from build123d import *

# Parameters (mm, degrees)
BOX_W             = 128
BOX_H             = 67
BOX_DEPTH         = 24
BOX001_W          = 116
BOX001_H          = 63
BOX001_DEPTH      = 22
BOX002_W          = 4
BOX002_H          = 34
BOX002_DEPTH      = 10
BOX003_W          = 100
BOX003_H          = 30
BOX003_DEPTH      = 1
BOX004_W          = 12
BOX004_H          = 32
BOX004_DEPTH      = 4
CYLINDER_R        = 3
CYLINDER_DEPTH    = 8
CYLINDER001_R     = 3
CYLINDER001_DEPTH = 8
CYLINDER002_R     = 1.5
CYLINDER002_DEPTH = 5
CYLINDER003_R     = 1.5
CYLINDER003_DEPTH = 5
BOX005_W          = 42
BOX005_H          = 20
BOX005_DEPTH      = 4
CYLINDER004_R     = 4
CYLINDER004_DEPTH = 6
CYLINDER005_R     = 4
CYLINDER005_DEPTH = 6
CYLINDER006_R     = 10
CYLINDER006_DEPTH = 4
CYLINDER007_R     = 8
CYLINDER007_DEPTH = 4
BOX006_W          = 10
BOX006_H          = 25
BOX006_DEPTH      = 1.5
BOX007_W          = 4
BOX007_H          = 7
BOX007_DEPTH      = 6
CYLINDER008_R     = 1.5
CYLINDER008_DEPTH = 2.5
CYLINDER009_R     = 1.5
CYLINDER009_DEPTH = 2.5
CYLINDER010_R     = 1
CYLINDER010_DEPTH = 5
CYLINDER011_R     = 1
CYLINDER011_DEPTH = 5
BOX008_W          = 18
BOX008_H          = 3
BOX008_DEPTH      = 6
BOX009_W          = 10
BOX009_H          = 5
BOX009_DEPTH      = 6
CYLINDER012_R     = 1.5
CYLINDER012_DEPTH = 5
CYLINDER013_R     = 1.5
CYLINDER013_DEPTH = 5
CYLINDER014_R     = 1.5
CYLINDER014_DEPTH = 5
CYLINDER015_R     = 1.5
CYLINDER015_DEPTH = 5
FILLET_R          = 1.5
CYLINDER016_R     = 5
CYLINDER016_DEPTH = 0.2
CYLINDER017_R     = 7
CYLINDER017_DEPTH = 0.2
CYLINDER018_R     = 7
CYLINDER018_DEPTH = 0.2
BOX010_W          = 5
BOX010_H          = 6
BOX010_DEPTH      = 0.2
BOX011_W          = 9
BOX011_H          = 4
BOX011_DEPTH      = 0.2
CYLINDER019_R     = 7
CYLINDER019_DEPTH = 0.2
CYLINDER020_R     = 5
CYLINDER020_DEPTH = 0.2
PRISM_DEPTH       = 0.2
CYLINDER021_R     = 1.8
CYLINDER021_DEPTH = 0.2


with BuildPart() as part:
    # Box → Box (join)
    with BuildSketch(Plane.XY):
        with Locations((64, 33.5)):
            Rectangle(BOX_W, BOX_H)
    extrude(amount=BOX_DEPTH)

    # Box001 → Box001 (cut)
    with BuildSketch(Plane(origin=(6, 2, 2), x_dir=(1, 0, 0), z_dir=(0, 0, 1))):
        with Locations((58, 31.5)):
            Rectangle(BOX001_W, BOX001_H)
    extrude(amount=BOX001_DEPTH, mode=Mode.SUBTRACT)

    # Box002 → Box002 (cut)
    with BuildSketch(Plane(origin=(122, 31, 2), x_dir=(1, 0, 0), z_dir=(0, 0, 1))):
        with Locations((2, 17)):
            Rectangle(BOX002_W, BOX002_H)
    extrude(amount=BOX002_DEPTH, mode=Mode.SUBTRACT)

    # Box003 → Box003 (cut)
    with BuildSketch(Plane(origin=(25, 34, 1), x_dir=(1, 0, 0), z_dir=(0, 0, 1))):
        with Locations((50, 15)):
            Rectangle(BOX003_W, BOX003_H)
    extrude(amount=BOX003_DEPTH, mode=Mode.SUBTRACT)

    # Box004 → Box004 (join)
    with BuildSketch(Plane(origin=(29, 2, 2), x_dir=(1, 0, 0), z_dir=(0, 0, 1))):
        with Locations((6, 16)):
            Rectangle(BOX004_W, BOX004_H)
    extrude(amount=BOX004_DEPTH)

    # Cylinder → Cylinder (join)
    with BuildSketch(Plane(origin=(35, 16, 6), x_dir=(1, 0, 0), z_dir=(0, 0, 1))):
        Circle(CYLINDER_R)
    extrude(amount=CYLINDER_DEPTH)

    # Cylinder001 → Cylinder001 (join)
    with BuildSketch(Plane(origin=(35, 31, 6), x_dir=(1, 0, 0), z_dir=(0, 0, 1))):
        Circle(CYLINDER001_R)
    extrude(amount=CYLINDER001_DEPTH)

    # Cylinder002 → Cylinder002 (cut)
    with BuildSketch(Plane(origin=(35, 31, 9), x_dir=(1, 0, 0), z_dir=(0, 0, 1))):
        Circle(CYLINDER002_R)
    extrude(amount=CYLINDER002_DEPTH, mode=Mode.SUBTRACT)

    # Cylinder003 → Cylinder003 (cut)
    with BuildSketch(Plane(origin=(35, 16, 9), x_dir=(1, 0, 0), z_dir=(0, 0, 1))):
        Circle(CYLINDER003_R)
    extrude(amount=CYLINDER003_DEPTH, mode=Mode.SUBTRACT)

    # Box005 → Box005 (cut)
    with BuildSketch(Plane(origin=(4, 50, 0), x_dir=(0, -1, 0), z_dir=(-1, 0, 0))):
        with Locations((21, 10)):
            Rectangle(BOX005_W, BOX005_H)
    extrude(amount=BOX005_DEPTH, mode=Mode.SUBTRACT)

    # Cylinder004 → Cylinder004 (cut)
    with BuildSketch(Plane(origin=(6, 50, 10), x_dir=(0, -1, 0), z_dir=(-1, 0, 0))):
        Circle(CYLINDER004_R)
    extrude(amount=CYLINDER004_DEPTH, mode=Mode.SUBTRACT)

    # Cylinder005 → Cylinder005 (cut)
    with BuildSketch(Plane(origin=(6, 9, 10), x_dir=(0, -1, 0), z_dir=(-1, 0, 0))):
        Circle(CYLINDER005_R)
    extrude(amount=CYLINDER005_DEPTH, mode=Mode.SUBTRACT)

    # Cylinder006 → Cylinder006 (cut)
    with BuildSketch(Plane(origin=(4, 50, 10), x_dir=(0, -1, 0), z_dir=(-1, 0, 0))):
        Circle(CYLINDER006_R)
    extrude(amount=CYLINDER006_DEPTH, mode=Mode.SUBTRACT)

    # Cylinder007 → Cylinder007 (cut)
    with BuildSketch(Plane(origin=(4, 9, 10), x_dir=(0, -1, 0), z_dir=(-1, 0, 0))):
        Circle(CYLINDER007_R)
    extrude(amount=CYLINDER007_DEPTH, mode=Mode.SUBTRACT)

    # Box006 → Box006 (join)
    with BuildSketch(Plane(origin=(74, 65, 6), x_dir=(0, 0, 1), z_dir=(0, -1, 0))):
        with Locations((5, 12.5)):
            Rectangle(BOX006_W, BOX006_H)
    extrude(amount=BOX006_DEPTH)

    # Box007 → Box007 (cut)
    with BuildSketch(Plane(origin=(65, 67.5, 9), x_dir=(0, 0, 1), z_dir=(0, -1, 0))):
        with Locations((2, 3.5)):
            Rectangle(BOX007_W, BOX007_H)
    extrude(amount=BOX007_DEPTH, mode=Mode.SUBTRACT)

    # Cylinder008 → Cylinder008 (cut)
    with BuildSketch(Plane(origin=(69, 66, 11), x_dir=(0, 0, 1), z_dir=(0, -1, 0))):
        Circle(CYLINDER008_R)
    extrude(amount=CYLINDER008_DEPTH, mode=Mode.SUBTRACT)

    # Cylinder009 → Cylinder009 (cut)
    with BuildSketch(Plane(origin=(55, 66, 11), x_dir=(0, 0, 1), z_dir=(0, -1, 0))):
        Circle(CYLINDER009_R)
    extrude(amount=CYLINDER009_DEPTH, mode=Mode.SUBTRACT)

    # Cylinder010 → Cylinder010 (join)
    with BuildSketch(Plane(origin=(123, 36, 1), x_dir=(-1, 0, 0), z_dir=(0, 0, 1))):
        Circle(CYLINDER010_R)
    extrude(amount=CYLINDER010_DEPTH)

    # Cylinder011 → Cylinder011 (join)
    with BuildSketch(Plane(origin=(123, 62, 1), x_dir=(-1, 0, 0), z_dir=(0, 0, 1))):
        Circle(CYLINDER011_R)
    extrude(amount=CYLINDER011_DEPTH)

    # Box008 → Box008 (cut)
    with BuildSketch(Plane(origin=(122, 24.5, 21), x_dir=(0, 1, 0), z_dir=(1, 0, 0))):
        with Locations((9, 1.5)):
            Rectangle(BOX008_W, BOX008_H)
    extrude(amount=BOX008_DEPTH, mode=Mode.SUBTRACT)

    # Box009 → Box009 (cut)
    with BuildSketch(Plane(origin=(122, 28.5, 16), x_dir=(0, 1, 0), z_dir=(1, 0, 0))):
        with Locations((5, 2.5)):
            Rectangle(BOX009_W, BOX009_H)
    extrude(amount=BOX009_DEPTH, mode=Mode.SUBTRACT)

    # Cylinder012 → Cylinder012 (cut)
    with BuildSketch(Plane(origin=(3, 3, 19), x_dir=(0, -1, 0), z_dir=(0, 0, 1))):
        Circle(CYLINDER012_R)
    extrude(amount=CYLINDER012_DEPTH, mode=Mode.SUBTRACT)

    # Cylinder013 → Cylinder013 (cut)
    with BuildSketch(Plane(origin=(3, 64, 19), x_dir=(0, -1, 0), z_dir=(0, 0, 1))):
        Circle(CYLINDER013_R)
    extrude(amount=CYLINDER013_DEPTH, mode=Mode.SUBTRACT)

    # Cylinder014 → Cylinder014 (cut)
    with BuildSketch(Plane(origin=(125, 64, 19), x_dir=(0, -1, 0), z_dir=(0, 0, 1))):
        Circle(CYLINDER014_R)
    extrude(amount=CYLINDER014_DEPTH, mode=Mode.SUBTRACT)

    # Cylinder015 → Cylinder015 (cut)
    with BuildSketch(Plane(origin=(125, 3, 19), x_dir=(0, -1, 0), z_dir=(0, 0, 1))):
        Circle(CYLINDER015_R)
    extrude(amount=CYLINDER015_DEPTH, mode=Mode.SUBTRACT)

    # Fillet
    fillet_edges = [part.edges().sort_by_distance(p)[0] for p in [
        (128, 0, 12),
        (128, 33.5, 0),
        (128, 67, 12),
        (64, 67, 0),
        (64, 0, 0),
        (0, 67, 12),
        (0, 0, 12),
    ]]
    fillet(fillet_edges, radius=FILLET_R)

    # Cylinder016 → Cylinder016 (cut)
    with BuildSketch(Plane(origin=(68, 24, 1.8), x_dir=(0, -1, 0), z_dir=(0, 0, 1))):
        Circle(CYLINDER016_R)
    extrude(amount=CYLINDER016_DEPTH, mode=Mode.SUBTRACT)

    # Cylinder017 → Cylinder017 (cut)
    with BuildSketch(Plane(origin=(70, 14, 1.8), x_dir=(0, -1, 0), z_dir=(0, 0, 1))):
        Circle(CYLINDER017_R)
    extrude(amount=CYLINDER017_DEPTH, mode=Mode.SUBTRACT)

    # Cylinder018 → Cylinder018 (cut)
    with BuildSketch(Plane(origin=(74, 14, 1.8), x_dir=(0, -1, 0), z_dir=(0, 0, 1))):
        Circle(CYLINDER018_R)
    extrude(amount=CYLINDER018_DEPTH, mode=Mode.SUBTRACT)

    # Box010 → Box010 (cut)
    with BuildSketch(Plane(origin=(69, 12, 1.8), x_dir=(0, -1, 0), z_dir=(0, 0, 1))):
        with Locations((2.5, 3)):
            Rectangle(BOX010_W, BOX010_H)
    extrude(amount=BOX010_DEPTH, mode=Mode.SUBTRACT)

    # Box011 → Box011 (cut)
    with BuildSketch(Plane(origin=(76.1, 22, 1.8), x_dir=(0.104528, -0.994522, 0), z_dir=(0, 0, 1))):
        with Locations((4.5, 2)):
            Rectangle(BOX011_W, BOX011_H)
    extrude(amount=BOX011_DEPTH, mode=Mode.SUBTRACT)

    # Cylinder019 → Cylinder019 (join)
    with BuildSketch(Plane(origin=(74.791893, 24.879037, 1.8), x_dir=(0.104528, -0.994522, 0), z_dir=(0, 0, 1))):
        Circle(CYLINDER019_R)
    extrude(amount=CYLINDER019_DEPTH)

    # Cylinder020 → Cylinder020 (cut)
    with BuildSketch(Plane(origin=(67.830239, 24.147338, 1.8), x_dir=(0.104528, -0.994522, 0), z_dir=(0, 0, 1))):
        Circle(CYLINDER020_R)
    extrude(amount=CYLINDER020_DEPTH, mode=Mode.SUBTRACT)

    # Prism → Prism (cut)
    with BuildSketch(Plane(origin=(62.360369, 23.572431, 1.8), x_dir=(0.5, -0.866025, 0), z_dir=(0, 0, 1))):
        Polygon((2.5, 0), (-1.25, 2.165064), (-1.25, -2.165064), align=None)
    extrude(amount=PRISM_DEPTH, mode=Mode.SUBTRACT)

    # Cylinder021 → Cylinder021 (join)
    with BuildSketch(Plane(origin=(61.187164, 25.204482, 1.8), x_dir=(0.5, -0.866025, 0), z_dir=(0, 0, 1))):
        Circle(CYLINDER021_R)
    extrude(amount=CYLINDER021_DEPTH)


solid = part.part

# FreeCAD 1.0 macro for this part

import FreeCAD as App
import Part
import Sketcher
from FreeCAD import Vector
Q = App.Units.Quantity


def edges_at(feature, points):
    """Names of the edges that pass closest to the given points."""
    edges = feature.Shape.Edges
    near = lambda p: min(range(len(edges)), key=lambda i: edges[i].distToShape(Part.Vertex(*p))[0])
    return sorted({f"Edge{near(p) + 1}" for p in points})

doc = App.newDocument("Part")
body = doc.addObject("PartDesign::Body", "Body")

# Sketch on XY plane
sketch1 = doc.addObject("Sketcher::SketchObject", "Sketch")
body.addObject(sketch1)
sketch1.AttachmentSupport = (doc.XY_Plane, [""])
sketch1.MapMode = "FlatFace"
sketch1.addGeometry(Part.LineSegment(Vector(0, 67, 0), Vector(0, 0, 0)), False)
sketch1.addGeometry(Part.LineSegment(Vector(0, 0, 0), Vector(128, 0, 0)), False)
sketch1.addGeometry(Part.LineSegment(Vector(128, 0, 0), Vector(128, 67, 0)), False)
sketch1.addGeometry(Part.LineSegment(Vector(128, 67, 0), Vector(0, 67, 0)), False)
sketch1.addConstraint(Sketcher.Constraint("Coincident", 0, 2, 1, 1))
sketch1.addConstraint(Sketcher.Constraint("Coincident", 1, 2, 2, 1))
sketch1.addConstraint(Sketcher.Constraint("Coincident", 2, 2, 3, 1))
sketch1.addConstraint(Sketcher.Constraint("Coincident", 3, 2, 0, 1))
sketch1.addConstraint(Sketcher.Constraint("Vertical", 0))
sketch1.addConstraint(Sketcher.Constraint("Horizontal", 1))
sketch1.addConstraint(Sketcher.Constraint("Vertical", 2))
sketch1.addConstraint(Sketcher.Constraint("Horizontal", 3))
sketch1.addConstraint(Sketcher.Constraint("Coincident", 0, 2, -1, 1))
sketch1.addConstraint(Sketcher.Constraint("DistanceX", 1, 1, 1, 2, 128.0))
sketch1.addConstraint(Sketcher.Constraint("DistanceY", 0, 2, 0, 1, 67.0))
pad1 = doc.addObject("PartDesign::Pad", "Pad")
body.addObject(pad1)
pad1.Profile = sketch1
pad1.Length = 24

# Sketch on XY plane
sketch2 = doc.addObject("Sketcher::SketchObject", "Sketch001")
body.addObject(sketch2)
sketch2.AttachmentSupport = (doc.XY_Plane, [""])
sketch2.MapMode = "FlatFace"
sketch2.AttachmentOffset = App.Placement(Vector(0, 0, 2), App.Rotation())
sketch2.addGeometry(Part.LineSegment(Vector(6, 65, 0), Vector(6, 2, 0)), False)
sketch2.addGeometry(Part.LineSegment(Vector(6, 2, 0), Vector(122, 2, 0)), False)
sketch2.addGeometry(Part.LineSegment(Vector(122, 2, 0), Vector(122, 65, 0)), False)
sketch2.addGeometry(Part.LineSegment(Vector(122, 65, 0), Vector(6, 65, 0)), False)
sketch2.addConstraint(Sketcher.Constraint("Coincident", 0, 2, 1, 1))
sketch2.addConstraint(Sketcher.Constraint("Coincident", 1, 2, 2, 1))
sketch2.addConstraint(Sketcher.Constraint("Coincident", 2, 2, 3, 1))
sketch2.addConstraint(Sketcher.Constraint("Coincident", 3, 2, 0, 1))
sketch2.addConstraint(Sketcher.Constraint("Vertical", 0))
sketch2.addConstraint(Sketcher.Constraint("Horizontal", 1))
sketch2.addConstraint(Sketcher.Constraint("Vertical", 2))
sketch2.addConstraint(Sketcher.Constraint("Horizontal", 3))
sketch2.addConstraint(Sketcher.Constraint("DistanceX", 1, 1, 1, 2, 116.0))
sketch2.addConstraint(Sketcher.Constraint("DistanceY", 0, 2, 0, 1, 63.0))
sketch2.addConstraint(Sketcher.Constraint("DistanceX", -1, 1, 0, 2, 6.0))
sketch2.addConstraint(Sketcher.Constraint("DistanceY", -1, 1, 0, 2, 2.0))
pocket1 = doc.addObject("PartDesign::Pocket", "Pocket")
body.addObject(pocket1)
pocket1.Profile = sketch2
pocket1.Length = 22
pocket1.Reversed = True

# Sketch on XY plane
sketch3 = doc.addObject("Sketcher::SketchObject", "Sketch002")
body.addObject(sketch3)
sketch3.AttachmentSupport = (doc.XY_Plane, [""])
sketch3.MapMode = "FlatFace"
sketch3.AttachmentOffset = App.Placement(Vector(0, 0, 2), App.Rotation())
sketch3.addGeometry(Part.LineSegment(Vector(122, 65, 0), Vector(122, 31, 0)), False)
sketch3.addGeometry(Part.LineSegment(Vector(122, 31, 0), Vector(126, 31, 0)), False)
sketch3.addGeometry(Part.LineSegment(Vector(126, 31, 0), Vector(126, 65, 0)), False)
sketch3.addGeometry(Part.LineSegment(Vector(126, 65, 0), Vector(122, 65, 0)), False)
sketch3.addConstraint(Sketcher.Constraint("Coincident", 0, 2, 1, 1))
sketch3.addConstraint(Sketcher.Constraint("Coincident", 1, 2, 2, 1))
sketch3.addConstraint(Sketcher.Constraint("Coincident", 2, 2, 3, 1))
sketch3.addConstraint(Sketcher.Constraint("Coincident", 3, 2, 0, 1))
sketch3.addConstraint(Sketcher.Constraint("Vertical", 0))
sketch3.addConstraint(Sketcher.Constraint("Horizontal", 1))
sketch3.addConstraint(Sketcher.Constraint("Vertical", 2))
sketch3.addConstraint(Sketcher.Constraint("Horizontal", 3))
sketch3.addConstraint(Sketcher.Constraint("DistanceX", 1, 1, 1, 2, 4.0))
sketch3.addConstraint(Sketcher.Constraint("DistanceY", 0, 2, 0, 1, 34.0))
sketch3.addConstraint(Sketcher.Constraint("DistanceX", -1, 1, 0, 2, 122.0))
sketch3.addConstraint(Sketcher.Constraint("DistanceY", -1, 1, 0, 2, 31.0))
pocket2 = doc.addObject("PartDesign::Pocket", "Pocket001")
body.addObject(pocket2)
pocket2.Profile = sketch3
pocket2.Length = 10
pocket2.Reversed = True

# Sketch on XY plane
sketch4 = doc.addObject("Sketcher::SketchObject", "Sketch003")
body.addObject(sketch4)
sketch4.AttachmentSupport = (doc.XY_Plane, [""])
sketch4.MapMode = "FlatFace"
sketch4.AttachmentOffset = App.Placement(Vector(0, 0, 1), App.Rotation())
sketch4.addGeometry(Part.LineSegment(Vector(25, 64, 0), Vector(25, 34, 0)), False)
sketch4.addGeometry(Part.LineSegment(Vector(25, 34, 0), Vector(125, 34, 0)), False)
sketch4.addGeometry(Part.LineSegment(Vector(125, 34, 0), Vector(125, 64, 0)), False)
sketch4.addGeometry(Part.LineSegment(Vector(125, 64, 0), Vector(25, 64, 0)), False)
sketch4.addConstraint(Sketcher.Constraint("Coincident", 0, 2, 1, 1))
sketch4.addConstraint(Sketcher.Constraint("Coincident", 1, 2, 2, 1))
sketch4.addConstraint(Sketcher.Constraint("Coincident", 2, 2, 3, 1))
sketch4.addConstraint(Sketcher.Constraint("Coincident", 3, 2, 0, 1))
sketch4.addConstraint(Sketcher.Constraint("Vertical", 0))
sketch4.addConstraint(Sketcher.Constraint("Horizontal", 1))
sketch4.addConstraint(Sketcher.Constraint("Vertical", 2))
sketch4.addConstraint(Sketcher.Constraint("Horizontal", 3))
sketch4.addConstraint(Sketcher.Constraint("DistanceX", 1, 1, 1, 2, 100.0))
sketch4.addConstraint(Sketcher.Constraint("DistanceY", 0, 2, 0, 1, 30.0))
sketch4.addConstraint(Sketcher.Constraint("DistanceX", -1, 1, 0, 2, 25.0))
sketch4.addConstraint(Sketcher.Constraint("DistanceY", -1, 1, 0, 2, 34.0))
pocket3 = doc.addObject("PartDesign::Pocket", "Pocket002")
body.addObject(pocket3)
pocket3.Profile = sketch4
pocket3.Length = 1
pocket3.Reversed = True

# Sketch on XY plane
sketch5 = doc.addObject("Sketcher::SketchObject", "Sketch004")
body.addObject(sketch5)
sketch5.AttachmentSupport = (doc.XY_Plane, [""])
sketch5.MapMode = "FlatFace"
sketch5.AttachmentOffset = App.Placement(Vector(0, 0, 2), App.Rotation())
sketch5.addGeometry(Part.LineSegment(Vector(29, 34, 0), Vector(29, 2, 0)), False)
sketch5.addGeometry(Part.LineSegment(Vector(29, 2, 0), Vector(41, 2, 0)), False)
sketch5.addGeometry(Part.LineSegment(Vector(41, 2, 0), Vector(41, 34, 0)), False)
sketch5.addGeometry(Part.LineSegment(Vector(41, 34, 0), Vector(29, 34, 0)), False)
sketch5.addConstraint(Sketcher.Constraint("Coincident", 0, 2, 1, 1))
sketch5.addConstraint(Sketcher.Constraint("Coincident", 1, 2, 2, 1))
sketch5.addConstraint(Sketcher.Constraint("Coincident", 2, 2, 3, 1))
sketch5.addConstraint(Sketcher.Constraint("Coincident", 3, 2, 0, 1))
sketch5.addConstraint(Sketcher.Constraint("Vertical", 0))
sketch5.addConstraint(Sketcher.Constraint("Horizontal", 1))
sketch5.addConstraint(Sketcher.Constraint("Vertical", 2))
sketch5.addConstraint(Sketcher.Constraint("Horizontal", 3))
sketch5.addConstraint(Sketcher.Constraint("DistanceX", 1, 1, 1, 2, 12.0))
sketch5.addConstraint(Sketcher.Constraint("DistanceY", 0, 2, 0, 1, 32.0))
sketch5.addConstraint(Sketcher.Constraint("DistanceX", -1, 1, 0, 2, 29.0))
sketch5.addConstraint(Sketcher.Constraint("DistanceY", -1, 1, 0, 2, 2.0))
pad2 = doc.addObject("PartDesign::Pad", "Pad001")
body.addObject(pad2)
pad2.Profile = sketch5
pad2.Length = 4

# Sketch on XY plane
sketch6 = doc.addObject("Sketcher::SketchObject", "Sketch005")
body.addObject(sketch6)
sketch6.AttachmentSupport = (doc.XY_Plane, [""])
sketch6.MapMode = "FlatFace"
sketch6.AttachmentOffset = App.Placement(Vector(0, 0, 6), App.Rotation())
sketch6.addGeometry(Part.Circle(Vector(35, 16, 0), Vector(0, 0, 1), 3), False)
sketch6.addConstraint(Sketcher.Constraint("Diameter", 0, 6.0))
sketch6.addConstraint(Sketcher.Constraint("DistanceX", -1, 1, 0, 3, 35.0))
sketch6.addConstraint(Sketcher.Constraint("DistanceY", -1, 1, 0, 3, 16.0))
pad3 = doc.addObject("PartDesign::Pad", "Pad002")
body.addObject(pad3)
pad3.Profile = sketch6
pad3.Length = 8

# Sketch on XY plane
sketch7 = doc.addObject("Sketcher::SketchObject", "Sketch006")
body.addObject(sketch7)
sketch7.AttachmentSupport = (doc.XY_Plane, [""])
sketch7.MapMode = "FlatFace"
sketch7.AttachmentOffset = App.Placement(Vector(0, 0, 6), App.Rotation())
sketch7.addGeometry(Part.Circle(Vector(35, 31, 0), Vector(0, 0, 1), 3), False)
sketch7.addConstraint(Sketcher.Constraint("Diameter", 0, 6.0))
sketch7.addConstraint(Sketcher.Constraint("DistanceX", -1, 1, 0, 3, 35.0))
sketch7.addConstraint(Sketcher.Constraint("DistanceY", -1, 1, 0, 3, 31.0))
pad4 = doc.addObject("PartDesign::Pad", "Pad003")
body.addObject(pad4)
pad4.Profile = sketch7
pad4.Length = 8

# Sketch on XY plane
sketch8 = doc.addObject("Sketcher::SketchObject", "Sketch007")
body.addObject(sketch8)
sketch8.AttachmentSupport = (doc.XY_Plane, [""])
sketch8.MapMode = "FlatFace"
sketch8.AttachmentOffset = App.Placement(Vector(0, 0, 9), App.Rotation())
sketch8.addGeometry(Part.Circle(Vector(35, 31, 0), Vector(0, 0, 1), 1.5), False)
sketch8.addConstraint(Sketcher.Constraint("Diameter", 0, 3.0))
sketch8.addConstraint(Sketcher.Constraint("DistanceX", -1, 1, 0, 3, 35.0))
sketch8.addConstraint(Sketcher.Constraint("DistanceY", -1, 1, 0, 3, 31.0))
pocket4 = doc.addObject("PartDesign::Pocket", "Pocket003")
body.addObject(pocket4)
pocket4.Profile = sketch8
pocket4.Length = 5
pocket4.Reversed = True

# Sketch on XY plane
sketch9 = doc.addObject("Sketcher::SketchObject", "Sketch008")
body.addObject(sketch9)
sketch9.AttachmentSupport = (doc.XY_Plane, [""])
sketch9.MapMode = "FlatFace"
sketch9.AttachmentOffset = App.Placement(Vector(0, 0, 9), App.Rotation())
sketch9.addGeometry(Part.Circle(Vector(35, 16, 0), Vector(0, 0, 1), 1.5), False)
sketch9.addConstraint(Sketcher.Constraint("Diameter", 0, 3.0))
sketch9.addConstraint(Sketcher.Constraint("DistanceX", -1, 1, 0, 3, 35.0))
sketch9.addConstraint(Sketcher.Constraint("DistanceY", -1, 1, 0, 3, 16.0))
pocket5 = doc.addObject("PartDesign::Pocket", "Pocket004")
body.addObject(pocket5)
pocket5.Profile = sketch9
pocket5.Length = 5
pocket5.Reversed = True

# Sketch on YZ plane
sketch10 = doc.addObject("Sketcher::SketchObject", "Sketch009")
body.addObject(sketch10)
sketch10.AttachmentSupport = (doc.YZ_Plane, [""])
sketch10.MapMode = "FlatFace"
sketch10.AttachmentOffset = App.Placement(Vector(0, 0, 4), App.Rotation())
sketch10.addGeometry(Part.LineSegment(Vector(50, 20, 0), Vector(50, 0, 0)), False)
sketch10.addGeometry(Part.LineSegment(Vector(50, 0, 0), Vector(8, 0, 0)), False)
sketch10.addGeometry(Part.LineSegment(Vector(8, 0, 0), Vector(8, 20, 0)), False)
sketch10.addGeometry(Part.LineSegment(Vector(8, 20, 0), Vector(50, 20, 0)), False)
sketch10.addConstraint(Sketcher.Constraint("Coincident", 0, 2, 1, 1))
sketch10.addConstraint(Sketcher.Constraint("Coincident", 1, 2, 2, 1))
sketch10.addConstraint(Sketcher.Constraint("Coincident", 2, 2, 3, 1))
sketch10.addConstraint(Sketcher.Constraint("Coincident", 3, 2, 0, 1))
sketch10.addConstraint(Sketcher.Constraint("Vertical", 0))
sketch10.addConstraint(Sketcher.Constraint("Horizontal", 1))
sketch10.addConstraint(Sketcher.Constraint("Vertical", 2))
sketch10.addConstraint(Sketcher.Constraint("Horizontal", 3))
sketch10.addConstraint(Sketcher.Constraint("PointOnObject", 0, 2, -1))
sketch10.addConstraint(Sketcher.Constraint("DistanceX", 1, 2, 1, 1, 42.0))
sketch10.addConstraint(Sketcher.Constraint("DistanceY", 0, 2, 0, 1, 20.0))
sketch10.addConstraint(Sketcher.Constraint("DistanceX", -1, 1, 0, 2, 50.0))
pocket6 = doc.addObject("PartDesign::Pocket", "Pocket005")
body.addObject(pocket6)
pocket6.Profile = sketch10
pocket6.Length = 4

# Sketch on YZ plane
sketch11 = doc.addObject("Sketcher::SketchObject", "Sketch010")
body.addObject(sketch11)
sketch11.AttachmentSupport = (doc.YZ_Plane, [""])
sketch11.MapMode = "FlatFace"
sketch11.AttachmentOffset = App.Placement(Vector(0, 0, 6), App.Rotation())
sketch11.addGeometry(Part.Circle(Vector(50, 10, 0), Vector(0, 0, 1), 4), False)
sketch11.addConstraint(Sketcher.Constraint("Diameter", 0, 8.0))
sketch11.addConstraint(Sketcher.Constraint("DistanceX", -1, 1, 0, 3, 50.0))
sketch11.addConstraint(Sketcher.Constraint("DistanceY", -1, 1, 0, 3, 10.0))
pocket7 = doc.addObject("PartDesign::Pocket", "Pocket006")
body.addObject(pocket7)
pocket7.Profile = sketch11
pocket7.Length = 6

# Sketch on YZ plane
sketch12 = doc.addObject("Sketcher::SketchObject", "Sketch011")
body.addObject(sketch12)
sketch12.AttachmentSupport = (doc.YZ_Plane, [""])
sketch12.MapMode = "FlatFace"
sketch12.AttachmentOffset = App.Placement(Vector(0, 0, 6), App.Rotation())
sketch12.addGeometry(Part.Circle(Vector(9, 10, 0), Vector(0, 0, 1), 4), False)
sketch12.addConstraint(Sketcher.Constraint("Diameter", 0, 8.0))
sketch12.addConstraint(Sketcher.Constraint("DistanceX", -1, 1, 0, 3, 9.0))
sketch12.addConstraint(Sketcher.Constraint("DistanceY", -1, 1, 0, 3, 10.0))
pocket8 = doc.addObject("PartDesign::Pocket", "Pocket007")
body.addObject(pocket8)
pocket8.Profile = sketch12
pocket8.Length = 6

# Sketch on YZ plane
sketch13 = doc.addObject("Sketcher::SketchObject", "Sketch012")
body.addObject(sketch13)
sketch13.AttachmentSupport = (doc.YZ_Plane, [""])
sketch13.MapMode = "FlatFace"
sketch13.AttachmentOffset = App.Placement(Vector(0, 0, 4), App.Rotation())
sketch13.addGeometry(Part.Circle(Vector(50, 10, 0), Vector(0, 0, 1), 10), False)
sketch13.addConstraint(Sketcher.Constraint("Diameter", 0, 20.0))
sketch13.addConstraint(Sketcher.Constraint("DistanceX", -1, 1, 0, 3, 50.0))
sketch13.addConstraint(Sketcher.Constraint("DistanceY", -1, 1, 0, 3, 10.0))
pocket9 = doc.addObject("PartDesign::Pocket", "Pocket008")
body.addObject(pocket9)
pocket9.Profile = sketch13
pocket9.Length = 4

# Sketch on YZ plane
sketch14 = doc.addObject("Sketcher::SketchObject", "Sketch013")
body.addObject(sketch14)
sketch14.AttachmentSupport = (doc.YZ_Plane, [""])
sketch14.MapMode = "FlatFace"
sketch14.AttachmentOffset = App.Placement(Vector(0, 0, 4), App.Rotation())
sketch14.addGeometry(Part.Circle(Vector(9, 10, 0), Vector(0, 0, 1), 8), False)
sketch14.addConstraint(Sketcher.Constraint("Diameter", 0, 16.0))
sketch14.addConstraint(Sketcher.Constraint("DistanceX", -1, 1, 0, 3, 9.0))
sketch14.addConstraint(Sketcher.Constraint("DistanceY", -1, 1, 0, 3, 10.0))
pocket10 = doc.addObject("PartDesign::Pocket", "Pocket009")
body.addObject(pocket10)
pocket10.Profile = sketch14
pocket10.Length = 4

# Sketch on XZ plane
sketch15 = doc.addObject("Sketcher::SketchObject", "Sketch014")
body.addObject(sketch15)
sketch15.AttachmentSupport = (doc.XZ_Plane, [""])
sketch15.MapMode = "FlatFace"
sketch15.AttachmentOffset = App.Placement(Vector(0, 0, -65), App.Rotation())
sketch15.addGeometry(Part.LineSegment(Vector(49, 6, 0), Vector(74, 6, 0)), False)
sketch15.addGeometry(Part.LineSegment(Vector(74, 6, 0), Vector(74, 16, 0)), False)
sketch15.addGeometry(Part.LineSegment(Vector(74, 16, 0), Vector(49, 16, 0)), False)
sketch15.addGeometry(Part.LineSegment(Vector(49, 16, 0), Vector(49, 6, 0)), False)
sketch15.addConstraint(Sketcher.Constraint("Coincident", 0, 2, 1, 1))
sketch15.addConstraint(Sketcher.Constraint("Coincident", 1, 2, 2, 1))
sketch15.addConstraint(Sketcher.Constraint("Coincident", 2, 2, 3, 1))
sketch15.addConstraint(Sketcher.Constraint("Coincident", 3, 2, 0, 1))
sketch15.addConstraint(Sketcher.Constraint("Horizontal", 0))
sketch15.addConstraint(Sketcher.Constraint("Vertical", 1))
sketch15.addConstraint(Sketcher.Constraint("Horizontal", 2))
sketch15.addConstraint(Sketcher.Constraint("Vertical", 3))
sketch15.addConstraint(Sketcher.Constraint("DistanceX", 0, 1, 0, 2, 25.0))
sketch15.addConstraint(Sketcher.Constraint("DistanceY", 1, 1, 1, 2, 10.0))
sketch15.addConstraint(Sketcher.Constraint("DistanceX", -1, 1, 0, 2, 74.0))
sketch15.addConstraint(Sketcher.Constraint("DistanceY", -1, 1, 0, 2, 6.0))
pad5 = doc.addObject("PartDesign::Pad", "Pad004")
body.addObject(pad5)
pad5.Profile = sketch15
pad5.Length = 1.5

# Sketch on XZ plane
sketch16 = doc.addObject("Sketcher::SketchObject", "Sketch015")
body.addObject(sketch16)
sketch16.AttachmentSupport = (doc.XZ_Plane, [""])
sketch16.MapMode = "FlatFace"
sketch16.AttachmentOffset = App.Placement(Vector(0, 0, -67.5), App.Rotation())
sketch16.addGeometry(Part.LineSegment(Vector(58, 9, 0), Vector(65, 9, 0)), False)
sketch16.addGeometry(Part.LineSegment(Vector(65, 9, 0), Vector(65, 13, 0)), False)
sketch16.addGeometry(Part.LineSegment(Vector(65, 13, 0), Vector(58, 13, 0)), False)
sketch16.addGeometry(Part.LineSegment(Vector(58, 13, 0), Vector(58, 9, 0)), False)
sketch16.addConstraint(Sketcher.Constraint("Coincident", 0, 2, 1, 1))
sketch16.addConstraint(Sketcher.Constraint("Coincident", 1, 2, 2, 1))
sketch16.addConstraint(Sketcher.Constraint("Coincident", 2, 2, 3, 1))
sketch16.addConstraint(Sketcher.Constraint("Coincident", 3, 2, 0, 1))
sketch16.addConstraint(Sketcher.Constraint("Horizontal", 0))
sketch16.addConstraint(Sketcher.Constraint("Vertical", 1))
sketch16.addConstraint(Sketcher.Constraint("Horizontal", 2))
sketch16.addConstraint(Sketcher.Constraint("Vertical", 3))
sketch16.addConstraint(Sketcher.Constraint("DistanceX", 0, 1, 0, 2, 7.0))
sketch16.addConstraint(Sketcher.Constraint("DistanceY", 1, 1, 1, 2, 4.0))
sketch16.addConstraint(Sketcher.Constraint("DistanceX", -1, 1, 0, 2, 65.0))
sketch16.addConstraint(Sketcher.Constraint("DistanceY", -1, 1, 0, 2, 9.0))
pocket11 = doc.addObject("PartDesign::Pocket", "Pocket010")
body.addObject(pocket11)
pocket11.Profile = sketch16
pocket11.Length = 6
pocket11.Reversed = True

# Sketch on XZ plane
sketch17 = doc.addObject("Sketcher::SketchObject", "Sketch016")
body.addObject(sketch17)
sketch17.AttachmentSupport = (doc.XZ_Plane, [""])
sketch17.MapMode = "FlatFace"
sketch17.AttachmentOffset = App.Placement(Vector(0, 0, -66), App.Rotation())
sketch17.addGeometry(Part.Circle(Vector(69, 11, 0), Vector(0, 0, 1), 1.5), False)
sketch17.addConstraint(Sketcher.Constraint("Diameter", 0, 3.0))
sketch17.addConstraint(Sketcher.Constraint("DistanceX", -1, 1, 0, 3, 69.0))
sketch17.addConstraint(Sketcher.Constraint("DistanceY", -1, 1, 0, 3, 11.0))
pocket12 = doc.addObject("PartDesign::Pocket", "Pocket011")
body.addObject(pocket12)
pocket12.Profile = sketch17
pocket12.Length = 2.5
pocket12.Reversed = True

# Sketch on XZ plane
sketch18 = doc.addObject("Sketcher::SketchObject", "Sketch017")
body.addObject(sketch18)
sketch18.AttachmentSupport = (doc.XZ_Plane, [""])
sketch18.MapMode = "FlatFace"
sketch18.AttachmentOffset = App.Placement(Vector(0, 0, -66), App.Rotation())
sketch18.addGeometry(Part.Circle(Vector(55, 11, 0), Vector(0, 0, 1), 1.5), False)
sketch18.addConstraint(Sketcher.Constraint("Diameter", 0, 3.0))
sketch18.addConstraint(Sketcher.Constraint("DistanceX", -1, 1, 0, 3, 55.0))
sketch18.addConstraint(Sketcher.Constraint("DistanceY", -1, 1, 0, 3, 11.0))
pocket13 = doc.addObject("PartDesign::Pocket", "Pocket012")
body.addObject(pocket13)
pocket13.Profile = sketch18
pocket13.Length = 2.5
pocket13.Reversed = True

# Sketch on XY plane
sketch19 = doc.addObject("Sketcher::SketchObject", "Sketch018")
body.addObject(sketch19)
sketch19.AttachmentSupport = (doc.XY_Plane, [""])
sketch19.MapMode = "FlatFace"
sketch19.AttachmentOffset = App.Placement(Vector(0, 0, 1), App.Rotation())
sketch19.addGeometry(Part.Circle(Vector(123, 36, 0), Vector(0, 0, 1), 1), False)
sketch19.addConstraint(Sketcher.Constraint("Diameter", 0, 2.0))
sketch19.addConstraint(Sketcher.Constraint("DistanceX", -1, 1, 0, 3, 123.0))
sketch19.addConstraint(Sketcher.Constraint("DistanceY", -1, 1, 0, 3, 36.0))
pad6 = doc.addObject("PartDesign::Pad", "Pad005")
body.addObject(pad6)
pad6.Profile = sketch19
pad6.Length = 5

# Sketch on XY plane
sketch20 = doc.addObject("Sketcher::SketchObject", "Sketch019")
body.addObject(sketch20)
sketch20.AttachmentSupport = (doc.XY_Plane, [""])
sketch20.MapMode = "FlatFace"
sketch20.AttachmentOffset = App.Placement(Vector(0, 0, 1), App.Rotation())
sketch20.addGeometry(Part.Circle(Vector(123, 62, 0), Vector(0, 0, 1), 1), False)
sketch20.addConstraint(Sketcher.Constraint("Diameter", 0, 2.0))
sketch20.addConstraint(Sketcher.Constraint("DistanceX", -1, 1, 0, 3, 123.0))
sketch20.addConstraint(Sketcher.Constraint("DistanceY", -1, 1, 0, 3, 62.0))
pad7 = doc.addObject("PartDesign::Pad", "Pad006")
body.addObject(pad7)
pad7.Profile = sketch20
pad7.Length = 5

# Sketch on YZ plane
sketch21 = doc.addObject("Sketcher::SketchObject", "Sketch020")
body.addObject(sketch21)
sketch21.AttachmentSupport = (doc.YZ_Plane, [""])
sketch21.MapMode = "FlatFace"
sketch21.AttachmentOffset = App.Placement(Vector(0, 0, 122), App.Rotation())
sketch21.addGeometry(Part.LineSegment(Vector(24.5, 24, 0), Vector(24.5, 21, 0)), False)
sketch21.addGeometry(Part.LineSegment(Vector(24.5, 21, 0), Vector(42.5, 21, 0)), False)
sketch21.addGeometry(Part.LineSegment(Vector(42.5, 21, 0), Vector(42.5, 24, 0)), False)
sketch21.addGeometry(Part.LineSegment(Vector(42.5, 24, 0), Vector(24.5, 24, 0)), False)
sketch21.addConstraint(Sketcher.Constraint("Coincident", 0, 2, 1, 1))
sketch21.addConstraint(Sketcher.Constraint("Coincident", 1, 2, 2, 1))
sketch21.addConstraint(Sketcher.Constraint("Coincident", 2, 2, 3, 1))
sketch21.addConstraint(Sketcher.Constraint("Coincident", 3, 2, 0, 1))
sketch21.addConstraint(Sketcher.Constraint("Vertical", 0))
sketch21.addConstraint(Sketcher.Constraint("Horizontal", 1))
sketch21.addConstraint(Sketcher.Constraint("Vertical", 2))
sketch21.addConstraint(Sketcher.Constraint("Horizontal", 3))
sketch21.addConstraint(Sketcher.Constraint("DistanceX", 1, 1, 1, 2, 18.0))
sketch21.addConstraint(Sketcher.Constraint("DistanceY", 0, 2, 0, 1, 3.0))
sketch21.addConstraint(Sketcher.Constraint("DistanceY", -1, 1, 0, 2, 21.0))
sketch21.addConstraint(Sketcher.Constraint("DistanceX", -1, 1, 0, 2, 24.5))
pocket14 = doc.addObject("PartDesign::Pocket", "Pocket013")
body.addObject(pocket14)
pocket14.Profile = sketch21
pocket14.Length = 6
pocket14.Reversed = True

# Sketch on YZ plane
sketch22 = doc.addObject("Sketcher::SketchObject", "Sketch021")
body.addObject(sketch22)
sketch22.AttachmentSupport = (doc.YZ_Plane, [""])
sketch22.MapMode = "FlatFace"
sketch22.AttachmentOffset = App.Placement(Vector(0, 0, 122), App.Rotation())
sketch22.addGeometry(Part.LineSegment(Vector(28.5, 21, 0), Vector(28.5, 16, 0)), False)
sketch22.addGeometry(Part.LineSegment(Vector(28.5, 16, 0), Vector(38.5, 16, 0)), False)
sketch22.addGeometry(Part.LineSegment(Vector(38.5, 16, 0), Vector(38.5, 21, 0)), False)
sketch22.addGeometry(Part.LineSegment(Vector(38.5, 21, 0), Vector(28.5, 21, 0)), False)
sketch22.addConstraint(Sketcher.Constraint("Coincident", 0, 2, 1, 1))
sketch22.addConstraint(Sketcher.Constraint("Coincident", 1, 2, 2, 1))
sketch22.addConstraint(Sketcher.Constraint("Coincident", 2, 2, 3, 1))
sketch22.addConstraint(Sketcher.Constraint("Coincident", 3, 2, 0, 1))
sketch22.addConstraint(Sketcher.Constraint("Vertical", 0))
sketch22.addConstraint(Sketcher.Constraint("Horizontal", 1))
sketch22.addConstraint(Sketcher.Constraint("Vertical", 2))
sketch22.addConstraint(Sketcher.Constraint("Horizontal", 3))
sketch22.addConstraint(Sketcher.Constraint("DistanceX", 1, 1, 1, 2, 10.0))
sketch22.addConstraint(Sketcher.Constraint("DistanceY", 0, 2, 0, 1, 5.0))
sketch22.addConstraint(Sketcher.Constraint("DistanceY", -1, 1, 0, 2, 16.0))
sketch22.addConstraint(Sketcher.Constraint("DistanceX", -1, 1, 0, 2, 28.5))
pocket15 = doc.addObject("PartDesign::Pocket", "Pocket014")
body.addObject(pocket15)
pocket15.Profile = sketch22
pocket15.Length = 6
pocket15.Reversed = True

# Sketch on XY plane
sketch23 = doc.addObject("Sketcher::SketchObject", "Sketch022")
body.addObject(sketch23)
sketch23.AttachmentSupport = (doc.XY_Plane, [""])
sketch23.MapMode = "FlatFace"
sketch23.AttachmentOffset = App.Placement(Vector(0, 0, 19), App.Rotation())
sketch23.addGeometry(Part.Circle(Vector(3, 3, 0), Vector(0, 0, 1), 1.5), False)
sketch23.addConstraint(Sketcher.Constraint("Diameter", 0, 3.0))
sketch23.addConstraint(Sketcher.Constraint("DistanceX", -1, 1, 0, 3, 3.0))
sketch23.addConstraint(Sketcher.Constraint("DistanceY", -1, 1, 0, 3, 3.0))
pocket16 = doc.addObject("PartDesign::Pocket", "Pocket015")
body.addObject(pocket16)
pocket16.Profile = sketch23
pocket16.Length = 5
pocket16.Reversed = True

# Sketch on XY plane
sketch24 = doc.addObject("Sketcher::SketchObject", "Sketch023")
body.addObject(sketch24)
sketch24.AttachmentSupport = (doc.XY_Plane, [""])
sketch24.MapMode = "FlatFace"
sketch24.AttachmentOffset = App.Placement(Vector(0, 0, 19), App.Rotation())
sketch24.addGeometry(Part.Circle(Vector(3, 64, 0), Vector(0, 0, 1), 1.5), False)
sketch24.addConstraint(Sketcher.Constraint("Diameter", 0, 3.0))
sketch24.addConstraint(Sketcher.Constraint("DistanceX", -1, 1, 0, 3, 3.0))
sketch24.addConstraint(Sketcher.Constraint("DistanceY", -1, 1, 0, 3, 64.0))
pocket17 = doc.addObject("PartDesign::Pocket", "Pocket016")
body.addObject(pocket17)
pocket17.Profile = sketch24
pocket17.Length = 5
pocket17.Reversed = True

# Sketch on XY plane
sketch25 = doc.addObject("Sketcher::SketchObject", "Sketch024")
body.addObject(sketch25)
sketch25.AttachmentSupport = (doc.XY_Plane, [""])
sketch25.MapMode = "FlatFace"
sketch25.AttachmentOffset = App.Placement(Vector(0, 0, 19), App.Rotation())
sketch25.addGeometry(Part.Circle(Vector(125, 64, 0), Vector(0, 0, 1), 1.5), False)
sketch25.addConstraint(Sketcher.Constraint("Diameter", 0, 3.0))
sketch25.addConstraint(Sketcher.Constraint("DistanceX", -1, 1, 0, 3, 125.0))
sketch25.addConstraint(Sketcher.Constraint("DistanceY", -1, 1, 0, 3, 64.0))
pocket18 = doc.addObject("PartDesign::Pocket", "Pocket017")
body.addObject(pocket18)
pocket18.Profile = sketch25
pocket18.Length = 5
pocket18.Reversed = True

# Sketch on XY plane
sketch26 = doc.addObject("Sketcher::SketchObject", "Sketch025")
body.addObject(sketch26)
sketch26.AttachmentSupport = (doc.XY_Plane, [""])
sketch26.MapMode = "FlatFace"
sketch26.AttachmentOffset = App.Placement(Vector(0, 0, 19), App.Rotation())
sketch26.addGeometry(Part.Circle(Vector(125, 3, 0), Vector(0, 0, 1), 1.5), False)
sketch26.addConstraint(Sketcher.Constraint("Diameter", 0, 3.0))
sketch26.addConstraint(Sketcher.Constraint("DistanceX", -1, 1, 0, 3, 125.0))
sketch26.addConstraint(Sketcher.Constraint("DistanceY", -1, 1, 0, 3, 3.0))
pocket19 = doc.addObject("PartDesign::Pocket", "Pocket018")
body.addObject(pocket19)
pocket19.Profile = sketch26
pocket19.Length = 5
pocket19.Reversed = True
doc.recompute()

fillet = doc.addObject("PartDesign::Fillet", "Fillet")
body.addObject(fillet)
fillet.Base = (pocket19, edges_at(pocket19, [
    (128, 0, 12),
    (128, 33.5, 0),
    (128, 67, 12),
    (64, 67, 0),
    (64, 0, 0),
    (0, 67, 12),
    (0, 0, 12),
]))
fillet.Radius = 1.5

# Sketch on XY plane
sketch27 = doc.addObject("Sketcher::SketchObject", "Sketch026")
body.addObject(sketch27)
sketch27.AttachmentSupport = (doc.XY_Plane, [""])
sketch27.MapMode = "FlatFace"
sketch27.AttachmentOffset = App.Placement(Vector(0, 0, 1.8), App.Rotation())
sketch27.addGeometry(Part.Circle(Vector(68, 24, 0), Vector(0, 0, 1), 5), False)
sketch27.addConstraint(Sketcher.Constraint("Diameter", 0, 10.0))
sketch27.addConstraint(Sketcher.Constraint("DistanceX", -1, 1, 0, 3, 68.0))
sketch27.addConstraint(Sketcher.Constraint("DistanceY", -1, 1, 0, 3, 24.0))
pocket20 = doc.addObject("PartDesign::Pocket", "Pocket019")
body.addObject(pocket20)
pocket20.Profile = sketch27
pocket20.Length = 0.2
pocket20.Reversed = True

# Sketch on XY plane
sketch28 = doc.addObject("Sketcher::SketchObject", "Sketch027")
body.addObject(sketch28)
sketch28.AttachmentSupport = (doc.XY_Plane, [""])
sketch28.MapMode = "FlatFace"
sketch28.AttachmentOffset = App.Placement(Vector(0, 0, 1.8), App.Rotation())
sketch28.addGeometry(Part.Circle(Vector(70, 14, 0), Vector(0, 0, 1), 7), False)
sketch28.addConstraint(Sketcher.Constraint("Diameter", 0, 14.0))
sketch28.addConstraint(Sketcher.Constraint("DistanceX", -1, 1, 0, 3, 70.0))
sketch28.addConstraint(Sketcher.Constraint("DistanceY", -1, 1, 0, 3, 14.0))
pocket21 = doc.addObject("PartDesign::Pocket", "Pocket020")
body.addObject(pocket21)
pocket21.Profile = sketch28
pocket21.Length = 0.2
pocket21.Reversed = True

# Sketch on XY plane
sketch29 = doc.addObject("Sketcher::SketchObject", "Sketch028")
body.addObject(sketch29)
sketch29.AttachmentSupport = (doc.XY_Plane, [""])
sketch29.MapMode = "FlatFace"
sketch29.AttachmentOffset = App.Placement(Vector(0, 0, 1.8), App.Rotation())
sketch29.addGeometry(Part.Circle(Vector(74, 14, 0), Vector(0, 0, 1), 7), False)
sketch29.addConstraint(Sketcher.Constraint("Diameter", 0, 14.0))
sketch29.addConstraint(Sketcher.Constraint("DistanceX", -1, 1, 0, 3, 74.0))
sketch29.addConstraint(Sketcher.Constraint("DistanceY", -1, 1, 0, 3, 14.0))
pocket22 = doc.addObject("PartDesign::Pocket", "Pocket021")
body.addObject(pocket22)
pocket22.Profile = sketch29
pocket22.Length = 0.2
pocket22.Reversed = True

# Sketch on XY plane
sketch30 = doc.addObject("Sketcher::SketchObject", "Sketch029")
body.addObject(sketch30)
sketch30.AttachmentSupport = (doc.XY_Plane, [""])
sketch30.MapMode = "FlatFace"
sketch30.AttachmentOffset = App.Placement(Vector(0, 0, 1.8), App.Rotation())
sketch30.addGeometry(Part.LineSegment(Vector(75, 12, 0), Vector(69, 12, 0)), False)
sketch30.addGeometry(Part.LineSegment(Vector(69, 12, 0), Vector(69, 7, 0)), False)
sketch30.addGeometry(Part.LineSegment(Vector(69, 7, 0), Vector(75, 7, 0)), False)
sketch30.addGeometry(Part.LineSegment(Vector(75, 7, 0), Vector(75, 12, 0)), False)
sketch30.addConstraint(Sketcher.Constraint("Coincident", 0, 2, 1, 1))
sketch30.addConstraint(Sketcher.Constraint("Coincident", 1, 2, 2, 1))
sketch30.addConstraint(Sketcher.Constraint("Coincident", 2, 2, 3, 1))
sketch30.addConstraint(Sketcher.Constraint("Coincident", 3, 2, 0, 1))
sketch30.addConstraint(Sketcher.Constraint("Horizontal", 0))
sketch30.addConstraint(Sketcher.Constraint("Vertical", 1))
sketch30.addConstraint(Sketcher.Constraint("Horizontal", 2))
sketch30.addConstraint(Sketcher.Constraint("Vertical", 3))
sketch30.addConstraint(Sketcher.Constraint("DistanceX", 0, 2, 0, 1, 6.0))
sketch30.addConstraint(Sketcher.Constraint("DistanceY", 1, 2, 1, 1, 5.0))
sketch30.addConstraint(Sketcher.Constraint("DistanceX", -1, 1, 0, 2, 69.0))
sketch30.addConstraint(Sketcher.Constraint("DistanceY", -1, 1, 0, 2, 12.0))
pocket23 = doc.addObject("PartDesign::Pocket", "Pocket022")
body.addObject(pocket23)
pocket23.Profile = sketch30
pocket23.Length = 0.2
pocket23.Reversed = True

# Sketch on XY plane
sketch31 = doc.addObject("Sketcher::SketchObject", "Sketch030")
body.addObject(sketch31)
sketch31.AttachmentSupport = (doc.XY_Plane, [""])
sketch31.MapMode = "FlatFace"
sketch31.AttachmentOffset = App.Placement(Vector(0, 0, 1.8), App.Rotation())
sketch31.addGeometry(Part.LineSegment(Vector(80.078088, 22.418112, 0), Vector(76.1, 22, 0)), False)
sketch31.addGeometry(Part.LineSegment(Vector(76.1, 22, 0), Vector(77.040752, 13.049302, 0)), False)
sketch31.addGeometry(Part.LineSegment(Vector(77.040752, 13.049302, 0), Vector(81.01884, 13.467414, 0)), False)
sketch31.addGeometry(Part.LineSegment(Vector(81.01884, 13.467414, 0), Vector(80.078088, 22.418112, 0)), False)
sketch31.addConstraint(Sketcher.Constraint("Coincident", 0, 2, 1, 1))
sketch31.addConstraint(Sketcher.Constraint("Coincident", 1, 2, 2, 1))
sketch31.addConstraint(Sketcher.Constraint("Coincident", 2, 2, 3, 1))
sketch31.addConstraint(Sketcher.Constraint("Coincident", 3, 2, 0, 1))
sketch31.addConstraint(Sketcher.Constraint("Perpendicular", 0, 1))
sketch31.addConstraint(Sketcher.Constraint("Perpendicular", 1, 2))
sketch31.addConstraint(Sketcher.Constraint("Perpendicular", 2, 3))
sketch31.addConstraint(Sketcher.Constraint("Distance", 0, 4.0))
sketch31.addConstraint(Sketcher.Constraint("Distance", 1, 9.0))
sketch31.addConstraint(Sketcher.Constraint("DistanceY", -1, 1, 0, 2, 22.0))
sketch31.addConstraint(Sketcher.Constraint("DistanceX", -1, 1, 0, 2, 76.1))
sketch31.addConstraint(Sketcher.Constraint("DistanceX", -1, 1, 1, 2, 77.040752))
pocket24 = doc.addObject("PartDesign::Pocket", "Pocket023")
body.addObject(pocket24)
pocket24.Profile = sketch31
pocket24.Length = 0.2
pocket24.Reversed = True

# Sketch on XY plane
sketch32 = doc.addObject("Sketcher::SketchObject", "Sketch031")
body.addObject(sketch32)
sketch32.AttachmentSupport = (doc.XY_Plane, [""])
sketch32.MapMode = "FlatFace"
sketch32.AttachmentOffset = App.Placement(Vector(0, 0, 1.8), App.Rotation())
sketch32.addGeometry(Part.Circle(Vector(74.791893, 24.879037, 0), Vector(0, 0, 1), 7), False)
sketch32.addConstraint(Sketcher.Constraint("Diameter", 0, 14.0))
sketch32.addConstraint(Sketcher.Constraint("DistanceX", -1, 1, 0, 3, 74.791893))
sketch32.addConstraint(Sketcher.Constraint("DistanceY", -1, 1, 0, 3, 24.879037))
pad8 = doc.addObject("PartDesign::Pad", "Pad007")
body.addObject(pad8)
pad8.Profile = sketch32
pad8.Length = 0.2

# Sketch on XY plane
sketch33 = doc.addObject("Sketcher::SketchObject", "Sketch032")
body.addObject(sketch33)
sketch33.AttachmentSupport = (doc.XY_Plane, [""])
sketch33.MapMode = "FlatFace"
sketch33.AttachmentOffset = App.Placement(Vector(0, 0, 1.8), App.Rotation())
sketch33.addGeometry(Part.Circle(Vector(67.830239, 24.147338, 0), Vector(0, 0, 1), 5), False)
sketch33.addConstraint(Sketcher.Constraint("Diameter", 0, 10.0))
sketch33.addConstraint(Sketcher.Constraint("DistanceX", -1, 1, 0, 3, 67.830239))
sketch33.addConstraint(Sketcher.Constraint("DistanceY", -1, 1, 0, 3, 24.147338))
pocket25 = doc.addObject("PartDesign::Pocket", "Pocket024")
body.addObject(pocket25)
pocket25.Profile = sketch33
pocket25.Length = 0.2
pocket25.Reversed = True

# Sketch on XY plane
sketch34 = doc.addObject("Sketcher::SketchObject", "Sketch033")
body.addObject(sketch34)
sketch34.AttachmentSupport = (doc.XY_Plane, [""])
sketch34.MapMode = "FlatFace"
sketch34.AttachmentOffset = App.Placement(Vector(0, 0, 1.8), App.Rotation())
sketch34.addGeometry(Part.LineSegment(Vector(63.610369, 21.407368, 0), Vector(63.610369, 25.737495, 0)), False)
sketch34.addGeometry(Part.LineSegment(Vector(63.610369, 25.737495, 0), Vector(59.860369, 23.57243, 0)), False)
sketch34.addGeometry(Part.LineSegment(Vector(59.860369, 23.57243, 0), Vector(63.610369, 21.407368, 0)), False)
sketch34.addConstraint(Sketcher.Constraint("Coincident", 0, 2, 1, 1))
sketch34.addConstraint(Sketcher.Constraint("Coincident", 1, 2, 2, 1))
sketch34.addConstraint(Sketcher.Constraint("Coincident", 2, 2, 0, 1))
sketch34.addConstraint(Sketcher.Constraint("Vertical", 0))
sketch34.addConstraint(Sketcher.Constraint("Equal", 1, 2))
sketch34.addConstraint(Sketcher.Constraint("Angle", 1, Q("-149.999988 deg")))
sketch34.addConstraint(Sketcher.Constraint("DistanceX", 1, 2, 0, 2, 3.75))
sketch34.addConstraint(Sketcher.Constraint("DistanceX", -1, 1, 0, 2, 63.610369))
sketch34.addConstraint(Sketcher.Constraint("DistanceY", -1, 1, 1, 2, 23.57243))
pocket26 = doc.addObject("PartDesign::Pocket", "Pocket025")
body.addObject(pocket26)
pocket26.Profile = sketch34
pocket26.Length = 0.2
pocket26.Reversed = True

# Sketch on XY plane
sketch35 = doc.addObject("Sketcher::SketchObject", "Sketch034")
body.addObject(sketch35)
sketch35.AttachmentSupport = (doc.XY_Plane, [""])
sketch35.MapMode = "FlatFace"
sketch35.AttachmentOffset = App.Placement(Vector(0, 0, 1.8), App.Rotation())
sketch35.addGeometry(Part.Circle(Vector(61.187164, 25.204482, 0), Vector(0, 0, 1), 1.8), False)
sketch35.addConstraint(Sketcher.Constraint("Diameter", 0, 3.6))
sketch35.addConstraint(Sketcher.Constraint("DistanceY", -1, 1, 0, 3, 25.204482))
sketch35.addConstraint(Sketcher.Constraint("DistanceX", -1, 1, 0, 3, 61.187164))
pad9 = doc.addObject("PartDesign::Pad", "Pad008")
body.addObject(pad9)
pad9.Profile = sketch35
pad9.Length = 0.2

doc.recompute()
